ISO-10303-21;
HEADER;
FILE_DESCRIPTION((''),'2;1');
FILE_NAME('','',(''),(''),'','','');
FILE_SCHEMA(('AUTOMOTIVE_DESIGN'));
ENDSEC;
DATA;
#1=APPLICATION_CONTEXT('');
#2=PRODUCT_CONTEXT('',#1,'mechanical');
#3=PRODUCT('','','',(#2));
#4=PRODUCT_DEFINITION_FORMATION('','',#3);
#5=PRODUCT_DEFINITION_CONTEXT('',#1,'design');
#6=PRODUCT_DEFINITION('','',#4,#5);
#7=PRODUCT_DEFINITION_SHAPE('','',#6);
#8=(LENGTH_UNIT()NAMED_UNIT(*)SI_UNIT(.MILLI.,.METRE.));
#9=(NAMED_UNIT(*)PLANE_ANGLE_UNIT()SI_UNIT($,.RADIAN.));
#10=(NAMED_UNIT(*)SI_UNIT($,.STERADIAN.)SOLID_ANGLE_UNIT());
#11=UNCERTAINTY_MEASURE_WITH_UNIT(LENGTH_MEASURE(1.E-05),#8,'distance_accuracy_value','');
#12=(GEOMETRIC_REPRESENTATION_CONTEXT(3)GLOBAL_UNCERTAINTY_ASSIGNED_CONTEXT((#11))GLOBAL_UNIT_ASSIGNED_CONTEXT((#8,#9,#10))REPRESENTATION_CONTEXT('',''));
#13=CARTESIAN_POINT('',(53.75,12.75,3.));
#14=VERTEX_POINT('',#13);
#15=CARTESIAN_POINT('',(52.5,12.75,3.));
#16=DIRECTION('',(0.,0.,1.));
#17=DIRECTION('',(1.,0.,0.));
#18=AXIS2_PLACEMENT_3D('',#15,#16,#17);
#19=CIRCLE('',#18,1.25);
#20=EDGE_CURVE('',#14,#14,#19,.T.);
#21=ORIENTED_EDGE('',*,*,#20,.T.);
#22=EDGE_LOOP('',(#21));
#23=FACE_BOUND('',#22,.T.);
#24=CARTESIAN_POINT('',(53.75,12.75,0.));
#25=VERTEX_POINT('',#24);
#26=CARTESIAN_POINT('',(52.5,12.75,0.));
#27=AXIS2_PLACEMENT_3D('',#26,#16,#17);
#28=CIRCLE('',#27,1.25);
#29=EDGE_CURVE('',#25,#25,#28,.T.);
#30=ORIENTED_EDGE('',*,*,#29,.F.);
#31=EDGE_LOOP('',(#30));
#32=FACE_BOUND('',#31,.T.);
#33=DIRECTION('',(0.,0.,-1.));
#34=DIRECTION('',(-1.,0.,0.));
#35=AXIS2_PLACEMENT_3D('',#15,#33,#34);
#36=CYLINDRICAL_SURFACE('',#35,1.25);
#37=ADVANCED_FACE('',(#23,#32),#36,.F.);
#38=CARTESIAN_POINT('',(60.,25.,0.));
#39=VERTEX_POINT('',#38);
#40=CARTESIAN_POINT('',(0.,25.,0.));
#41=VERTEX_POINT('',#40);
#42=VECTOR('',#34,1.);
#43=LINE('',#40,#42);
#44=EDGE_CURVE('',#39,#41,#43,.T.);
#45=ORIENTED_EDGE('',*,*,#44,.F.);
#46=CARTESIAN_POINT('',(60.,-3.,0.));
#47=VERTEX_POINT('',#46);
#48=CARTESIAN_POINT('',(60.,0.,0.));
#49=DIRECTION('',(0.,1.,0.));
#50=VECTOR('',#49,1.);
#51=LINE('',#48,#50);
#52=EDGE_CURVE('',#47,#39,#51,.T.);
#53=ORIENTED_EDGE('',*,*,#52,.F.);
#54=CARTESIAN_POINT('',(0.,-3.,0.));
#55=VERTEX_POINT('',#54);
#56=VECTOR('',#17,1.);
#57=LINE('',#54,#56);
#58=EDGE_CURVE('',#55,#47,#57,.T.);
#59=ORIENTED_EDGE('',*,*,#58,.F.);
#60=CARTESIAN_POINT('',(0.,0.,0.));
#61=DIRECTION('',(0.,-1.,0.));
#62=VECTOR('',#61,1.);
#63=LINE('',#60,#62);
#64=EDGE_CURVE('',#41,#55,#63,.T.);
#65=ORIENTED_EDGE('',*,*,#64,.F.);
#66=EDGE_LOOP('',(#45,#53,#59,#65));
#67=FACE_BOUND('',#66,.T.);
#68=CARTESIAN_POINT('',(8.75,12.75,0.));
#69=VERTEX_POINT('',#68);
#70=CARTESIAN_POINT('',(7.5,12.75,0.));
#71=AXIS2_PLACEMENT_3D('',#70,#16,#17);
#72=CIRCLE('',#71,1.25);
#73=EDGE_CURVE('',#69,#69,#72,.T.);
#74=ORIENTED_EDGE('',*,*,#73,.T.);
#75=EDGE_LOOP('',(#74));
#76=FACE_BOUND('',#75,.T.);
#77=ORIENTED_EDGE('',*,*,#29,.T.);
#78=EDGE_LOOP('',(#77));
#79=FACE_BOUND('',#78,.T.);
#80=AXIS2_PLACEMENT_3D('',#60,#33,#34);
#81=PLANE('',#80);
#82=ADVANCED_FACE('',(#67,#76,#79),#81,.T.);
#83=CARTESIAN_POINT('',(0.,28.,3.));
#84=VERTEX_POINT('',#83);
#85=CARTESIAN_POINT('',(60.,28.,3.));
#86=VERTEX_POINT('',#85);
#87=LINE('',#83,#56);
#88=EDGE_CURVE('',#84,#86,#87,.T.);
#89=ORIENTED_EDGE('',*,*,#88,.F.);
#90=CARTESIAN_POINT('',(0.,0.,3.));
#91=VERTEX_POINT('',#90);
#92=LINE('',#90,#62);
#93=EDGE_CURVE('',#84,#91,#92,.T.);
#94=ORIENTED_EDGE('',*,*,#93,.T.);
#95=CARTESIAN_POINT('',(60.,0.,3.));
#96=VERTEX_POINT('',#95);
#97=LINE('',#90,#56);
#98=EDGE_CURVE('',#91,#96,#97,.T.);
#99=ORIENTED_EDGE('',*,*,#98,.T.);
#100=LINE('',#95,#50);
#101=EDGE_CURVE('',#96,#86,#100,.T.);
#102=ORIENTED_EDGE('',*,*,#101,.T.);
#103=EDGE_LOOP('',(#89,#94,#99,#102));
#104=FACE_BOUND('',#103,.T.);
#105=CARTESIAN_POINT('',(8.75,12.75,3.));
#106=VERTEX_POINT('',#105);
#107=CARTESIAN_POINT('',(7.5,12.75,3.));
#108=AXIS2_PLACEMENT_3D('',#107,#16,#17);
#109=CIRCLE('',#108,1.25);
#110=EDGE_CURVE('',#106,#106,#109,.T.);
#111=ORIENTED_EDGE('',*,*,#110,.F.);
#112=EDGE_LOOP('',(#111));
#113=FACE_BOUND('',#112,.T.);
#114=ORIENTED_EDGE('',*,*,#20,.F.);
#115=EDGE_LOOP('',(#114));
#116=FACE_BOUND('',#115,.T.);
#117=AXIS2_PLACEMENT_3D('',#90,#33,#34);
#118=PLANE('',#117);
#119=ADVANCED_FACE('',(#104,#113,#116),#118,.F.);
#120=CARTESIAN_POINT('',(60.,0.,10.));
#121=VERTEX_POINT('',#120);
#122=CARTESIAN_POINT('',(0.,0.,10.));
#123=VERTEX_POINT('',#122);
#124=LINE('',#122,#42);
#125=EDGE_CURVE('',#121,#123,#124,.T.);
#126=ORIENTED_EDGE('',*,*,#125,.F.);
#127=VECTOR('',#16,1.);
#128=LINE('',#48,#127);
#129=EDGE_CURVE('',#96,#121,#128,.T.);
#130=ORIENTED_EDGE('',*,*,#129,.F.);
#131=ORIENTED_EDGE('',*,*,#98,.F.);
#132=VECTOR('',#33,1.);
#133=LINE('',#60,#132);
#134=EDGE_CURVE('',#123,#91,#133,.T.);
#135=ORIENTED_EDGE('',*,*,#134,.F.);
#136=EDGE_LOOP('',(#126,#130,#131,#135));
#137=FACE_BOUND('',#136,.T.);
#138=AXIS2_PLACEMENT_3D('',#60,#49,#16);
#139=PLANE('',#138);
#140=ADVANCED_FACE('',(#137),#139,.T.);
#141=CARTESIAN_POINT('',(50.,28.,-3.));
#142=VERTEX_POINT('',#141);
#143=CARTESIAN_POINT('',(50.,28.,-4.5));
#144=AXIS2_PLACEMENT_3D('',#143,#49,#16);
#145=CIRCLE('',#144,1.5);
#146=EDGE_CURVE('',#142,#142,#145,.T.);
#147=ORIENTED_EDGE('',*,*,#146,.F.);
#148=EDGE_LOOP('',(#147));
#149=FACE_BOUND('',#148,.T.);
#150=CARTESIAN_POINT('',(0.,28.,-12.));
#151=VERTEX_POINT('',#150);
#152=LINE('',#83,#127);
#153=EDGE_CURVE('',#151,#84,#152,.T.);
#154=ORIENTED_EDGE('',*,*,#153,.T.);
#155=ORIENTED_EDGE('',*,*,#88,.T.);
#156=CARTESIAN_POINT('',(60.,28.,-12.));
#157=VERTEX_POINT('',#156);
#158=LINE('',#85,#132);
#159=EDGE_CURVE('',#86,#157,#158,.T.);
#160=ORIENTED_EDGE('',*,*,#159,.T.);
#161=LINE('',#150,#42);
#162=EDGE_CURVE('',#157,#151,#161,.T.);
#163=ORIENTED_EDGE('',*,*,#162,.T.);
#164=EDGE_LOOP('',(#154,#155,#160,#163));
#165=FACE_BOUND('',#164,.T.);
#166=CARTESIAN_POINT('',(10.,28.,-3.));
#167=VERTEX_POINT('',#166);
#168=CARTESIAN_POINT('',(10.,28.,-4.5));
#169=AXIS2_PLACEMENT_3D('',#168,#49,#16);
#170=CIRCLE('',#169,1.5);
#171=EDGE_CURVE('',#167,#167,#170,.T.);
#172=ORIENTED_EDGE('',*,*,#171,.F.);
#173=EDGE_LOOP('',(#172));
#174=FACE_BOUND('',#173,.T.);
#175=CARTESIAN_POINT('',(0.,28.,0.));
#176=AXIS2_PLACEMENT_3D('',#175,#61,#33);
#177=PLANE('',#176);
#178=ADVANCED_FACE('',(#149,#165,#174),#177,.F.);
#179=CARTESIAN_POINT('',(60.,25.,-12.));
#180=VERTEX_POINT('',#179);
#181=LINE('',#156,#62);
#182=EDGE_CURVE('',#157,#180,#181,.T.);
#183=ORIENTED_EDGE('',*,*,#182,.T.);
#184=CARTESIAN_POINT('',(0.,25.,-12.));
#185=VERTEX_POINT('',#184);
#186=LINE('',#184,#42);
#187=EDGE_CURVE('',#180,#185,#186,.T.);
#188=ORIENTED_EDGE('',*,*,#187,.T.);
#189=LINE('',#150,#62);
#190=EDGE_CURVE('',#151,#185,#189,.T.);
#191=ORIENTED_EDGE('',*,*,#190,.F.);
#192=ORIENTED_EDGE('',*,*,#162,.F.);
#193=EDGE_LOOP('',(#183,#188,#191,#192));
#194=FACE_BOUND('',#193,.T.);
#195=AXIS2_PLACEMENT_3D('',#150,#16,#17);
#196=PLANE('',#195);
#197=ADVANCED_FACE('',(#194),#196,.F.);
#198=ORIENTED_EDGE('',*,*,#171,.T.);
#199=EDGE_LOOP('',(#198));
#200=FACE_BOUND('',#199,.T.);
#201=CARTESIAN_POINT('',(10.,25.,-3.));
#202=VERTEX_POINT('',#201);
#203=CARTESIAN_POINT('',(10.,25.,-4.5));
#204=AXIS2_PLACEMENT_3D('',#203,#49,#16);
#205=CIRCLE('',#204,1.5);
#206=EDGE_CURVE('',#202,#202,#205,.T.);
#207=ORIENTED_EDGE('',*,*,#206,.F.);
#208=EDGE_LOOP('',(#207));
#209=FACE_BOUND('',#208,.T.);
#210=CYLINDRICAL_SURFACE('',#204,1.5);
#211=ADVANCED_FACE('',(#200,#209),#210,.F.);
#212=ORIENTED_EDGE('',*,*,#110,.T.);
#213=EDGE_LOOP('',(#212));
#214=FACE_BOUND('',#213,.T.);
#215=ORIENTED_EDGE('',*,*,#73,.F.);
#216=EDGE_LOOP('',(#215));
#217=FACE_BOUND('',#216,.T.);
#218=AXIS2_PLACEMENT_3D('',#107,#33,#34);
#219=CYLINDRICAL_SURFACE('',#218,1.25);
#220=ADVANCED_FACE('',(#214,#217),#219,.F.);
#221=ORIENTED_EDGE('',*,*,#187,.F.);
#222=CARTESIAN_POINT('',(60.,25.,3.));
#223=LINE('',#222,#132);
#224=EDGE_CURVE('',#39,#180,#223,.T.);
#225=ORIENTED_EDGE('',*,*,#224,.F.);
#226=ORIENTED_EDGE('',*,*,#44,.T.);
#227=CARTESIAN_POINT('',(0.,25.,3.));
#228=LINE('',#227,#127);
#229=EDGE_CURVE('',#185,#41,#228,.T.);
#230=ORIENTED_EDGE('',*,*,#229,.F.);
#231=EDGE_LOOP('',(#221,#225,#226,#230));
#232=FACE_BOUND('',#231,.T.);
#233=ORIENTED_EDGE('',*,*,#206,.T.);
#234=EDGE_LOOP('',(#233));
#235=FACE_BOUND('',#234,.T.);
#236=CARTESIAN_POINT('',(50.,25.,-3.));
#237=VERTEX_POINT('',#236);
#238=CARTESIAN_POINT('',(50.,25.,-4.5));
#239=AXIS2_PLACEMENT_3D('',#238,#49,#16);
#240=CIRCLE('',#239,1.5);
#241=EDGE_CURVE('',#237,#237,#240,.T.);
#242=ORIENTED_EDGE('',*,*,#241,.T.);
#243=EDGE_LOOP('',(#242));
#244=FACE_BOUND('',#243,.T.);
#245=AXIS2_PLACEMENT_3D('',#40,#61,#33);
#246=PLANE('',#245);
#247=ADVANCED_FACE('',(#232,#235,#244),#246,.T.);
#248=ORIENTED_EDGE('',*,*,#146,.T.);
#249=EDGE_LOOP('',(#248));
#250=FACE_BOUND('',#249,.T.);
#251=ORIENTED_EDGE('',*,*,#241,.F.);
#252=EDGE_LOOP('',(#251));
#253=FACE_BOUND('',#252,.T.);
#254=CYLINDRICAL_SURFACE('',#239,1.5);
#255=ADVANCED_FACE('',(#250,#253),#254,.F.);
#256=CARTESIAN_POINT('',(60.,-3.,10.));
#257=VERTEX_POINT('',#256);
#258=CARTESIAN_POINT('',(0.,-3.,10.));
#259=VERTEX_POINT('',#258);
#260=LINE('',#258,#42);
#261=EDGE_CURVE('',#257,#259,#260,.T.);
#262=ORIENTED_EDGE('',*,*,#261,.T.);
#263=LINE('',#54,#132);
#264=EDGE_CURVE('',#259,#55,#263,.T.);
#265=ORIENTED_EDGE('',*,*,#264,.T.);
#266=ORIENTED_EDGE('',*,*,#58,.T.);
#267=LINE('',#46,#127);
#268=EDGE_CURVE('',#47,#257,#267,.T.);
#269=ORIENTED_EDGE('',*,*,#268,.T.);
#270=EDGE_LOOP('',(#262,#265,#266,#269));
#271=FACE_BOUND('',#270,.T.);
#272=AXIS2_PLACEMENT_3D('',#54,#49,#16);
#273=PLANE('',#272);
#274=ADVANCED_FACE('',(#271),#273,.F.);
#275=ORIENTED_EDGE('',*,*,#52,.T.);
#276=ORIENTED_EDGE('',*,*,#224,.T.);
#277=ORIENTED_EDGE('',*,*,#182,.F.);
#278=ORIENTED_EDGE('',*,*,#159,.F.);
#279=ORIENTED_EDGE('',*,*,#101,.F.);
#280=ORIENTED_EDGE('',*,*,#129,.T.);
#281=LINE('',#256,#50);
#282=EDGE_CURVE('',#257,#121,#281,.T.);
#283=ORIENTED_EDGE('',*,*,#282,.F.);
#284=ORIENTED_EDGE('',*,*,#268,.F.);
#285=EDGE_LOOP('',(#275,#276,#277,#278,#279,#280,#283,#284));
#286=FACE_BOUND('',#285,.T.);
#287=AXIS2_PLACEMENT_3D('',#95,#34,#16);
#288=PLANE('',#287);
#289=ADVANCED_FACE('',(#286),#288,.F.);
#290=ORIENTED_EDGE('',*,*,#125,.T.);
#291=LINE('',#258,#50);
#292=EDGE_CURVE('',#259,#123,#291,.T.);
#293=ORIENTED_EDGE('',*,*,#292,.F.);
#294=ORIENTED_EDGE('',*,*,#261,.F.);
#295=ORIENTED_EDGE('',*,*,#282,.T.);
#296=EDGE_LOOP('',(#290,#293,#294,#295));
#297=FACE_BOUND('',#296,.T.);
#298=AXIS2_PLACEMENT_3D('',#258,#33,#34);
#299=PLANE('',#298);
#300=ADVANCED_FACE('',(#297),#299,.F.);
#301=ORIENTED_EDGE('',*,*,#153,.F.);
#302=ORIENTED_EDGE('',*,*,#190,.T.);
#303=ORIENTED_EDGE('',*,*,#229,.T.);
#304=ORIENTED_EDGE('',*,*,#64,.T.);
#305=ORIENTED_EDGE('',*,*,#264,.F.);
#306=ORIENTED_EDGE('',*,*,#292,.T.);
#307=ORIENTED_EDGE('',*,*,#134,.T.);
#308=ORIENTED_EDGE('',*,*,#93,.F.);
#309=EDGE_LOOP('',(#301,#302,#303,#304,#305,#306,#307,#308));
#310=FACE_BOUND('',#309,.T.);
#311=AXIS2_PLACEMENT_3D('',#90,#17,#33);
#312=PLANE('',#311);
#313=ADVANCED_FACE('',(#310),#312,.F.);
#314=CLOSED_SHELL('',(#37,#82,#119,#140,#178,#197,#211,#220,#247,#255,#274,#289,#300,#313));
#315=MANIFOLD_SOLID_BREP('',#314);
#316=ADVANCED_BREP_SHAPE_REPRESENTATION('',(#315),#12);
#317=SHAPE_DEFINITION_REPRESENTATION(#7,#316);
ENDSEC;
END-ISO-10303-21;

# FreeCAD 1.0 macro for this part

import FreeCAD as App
import Part
import Sketcher
from FreeCAD import Vector


def add_polygon(sketch, points):
    """Adds a closed chain of lines whose ends are joined by coincident constraints."""
    first, n = sketch.GeometryCount, len(points)
    for a, b in zip(points, points[1:] + points[:1]):
        sketch.addGeometry(Part.LineSegment(App.Vector(*a, 0), App.Vector(*b, 0)), False)
    for i in range(n):
        sketch.addConstraint(Sketcher.Constraint("Coincident", first + i, 2, first + (i + 1) % n, 1))

doc = App.newDocument("Part")
body = doc.addObject("PartDesign::Body", "Body")

# Sketch on XY plane
sketch1 = body.newObject("Sketcher::SketchObject", "Sketch")
sketch1.AttachmentSupport = (doc.getObject("XY_Plane"), [""])
sketch1.MapMode = "FlatFace"
add_polygon(sketch1, [(0, 25), (0, 0), (60, 0), (60, 25)])  # lines 0-3
sketch1.addGeometry(Part.Circle(Vector(7.5, 12.75, 0), Vector(0, 0, 1), 1.25), False)  # 4
sketch1.addGeometry(Part.Circle(Vector(52.5, 12.75, 0), Vector(0, 0, 1), 1.25), False)  # 5
sketch1.addConstraint([
    Sketcher.Constraint("Vertical", 0),
    Sketcher.Constraint("Horizontal", 1),
    Sketcher.Constraint("Vertical", 2),
    Sketcher.Constraint("Horizontal", 3),
    Sketcher.Constraint("Coincident", 0, 2, -1, 1),
    Sketcher.Constraint("Equal", 4, 5),
    Sketcher.Constraint("Horizontal", 4, 3, 5, 3),
    Sketcher.Constraint("Diameter", 4, 2.5),
    Sketcher.Constraint("DistanceX", 1, 1, 1, 2, 60.0),
    Sketcher.Constraint("DistanceY", 0, 2, 0, 1, 25.0),
    Sketcher.Constraint("DistanceX", 4, 3, 5, 3, 45.0),
    Sketcher.Constraint("DistanceX", -1, 1, 4, 3, 7.5),
    Sketcher.Constraint("DistanceY", -1, 1, 4, 3, 12.75),
])
pad1 = body.newObject("PartDesign::Pad", "Pad")
pad1.Profile = sketch1
pad1.Length = 3

# Sketch on XZ plane
sketch2 = body.newObject("Sketcher::SketchObject", "Sketch001")
sketch2.AttachmentSupport = (doc.getObject("XZ_Plane"), [""])
sketch2.MapMode = "FlatFace"
add_polygon(sketch2, [(0, 10), (0, 0), (60, 0), (60, 10)])  # lines 0-3
sketch2.addConstraint([
    Sketcher.Constraint("Vertical", 0),
    Sketcher.Constraint("Horizontal", 1),
    Sketcher.Constraint("Vertical", 2),
    Sketcher.Constraint("Horizontal", 3),
    Sketcher.Constraint("Coincident", 0, 2, -1, 1),
    Sketcher.Constraint("DistanceX", 1, 1, 1, 2, 60.0),
    Sketcher.Constraint("DistanceY", 0, 2, 0, 1, 10.0),
])
pad2 = body.newObject("PartDesign::Pad", "Pad001")
pad2.Profile = sketch2
pad2.Length = 3

# Sketch on XZ plane
sketch3 = body.newObject("Sketcher::SketchObject", "Sketch002")
sketch3.AttachmentSupport = (doc.getObject("XZ_Plane"), [""])
sketch3.MapMode = "FlatFace"
sketch3.AttachmentOffset = App.Placement(Vector(0, 0, -25), App.Rotation())
add_polygon(sketch3, [(0, -12), (0, 3), (60, 3), (60, -12)])  # lines 0-3
sketch3.addConstraint([
    Sketcher.Constraint("Vertical", 0),
    Sketcher.Constraint("Horizontal", 1),
    Sketcher.Constraint("Vertical", 2),
    Sketcher.Constraint("Horizontal", 3),
    Sketcher.Constraint("PointOnObject", 0, 2, -2),
    Sketcher.Constraint("DistanceX", 1, 1, 1, 2, 60.0),
    Sketcher.Constraint("DistanceY", 0, 1, 0, 2, 15.0),
    Sketcher.Constraint("DistanceY", -1, 1, 0, 2, 3.0),
])
pad3 = body.newObject("PartDesign::Pad", "Pad002")
pad3.Profile = sketch3
pad3.Length = 3
pad3.Reversed = True

# Sketch on XZ plane
sketch4 = body.newObject("Sketcher::SketchObject", "Sketch003")
sketch4.AttachmentSupport = (doc.getObject("XZ_Plane"), [""])
sketch4.MapMode = "FlatFace"
sketch4.AttachmentOffset = App.Placement(Vector(0, 0, -28), App.Rotation())
sketch4.addGeometry([
    Part.Circle(Vector(10, -4.5, 0), Vector(0, 0, 1), 1.5),
    Part.Circle(Vector(50, -4.5, 0), Vector(0, 0, 1), 1.5),
], False)
sketch4.addConstraint([
    Sketcher.Constraint("Equal", 0, 1),
    Sketcher.Constraint("Horizontal", 0, 3, 1, 3),
    Sketcher.Constraint("Diameter", 0, 3.0),
    Sketcher.Constraint("DistanceX", -1, 1, 0, 3, 10.0),
    Sketcher.Constraint("DistanceX", -1, 1, 1, 3, 50.0),
    Sketcher.Constraint("DistanceY", 0, 3, -1, 1, 4.5),
])
pocket1 = body.newObject("PartDesign::Pocket", "Pocket")
pocket1.Profile = sketch4
pocket1.Length = 3
pocket1.Reversed = True

doc.recompute()
